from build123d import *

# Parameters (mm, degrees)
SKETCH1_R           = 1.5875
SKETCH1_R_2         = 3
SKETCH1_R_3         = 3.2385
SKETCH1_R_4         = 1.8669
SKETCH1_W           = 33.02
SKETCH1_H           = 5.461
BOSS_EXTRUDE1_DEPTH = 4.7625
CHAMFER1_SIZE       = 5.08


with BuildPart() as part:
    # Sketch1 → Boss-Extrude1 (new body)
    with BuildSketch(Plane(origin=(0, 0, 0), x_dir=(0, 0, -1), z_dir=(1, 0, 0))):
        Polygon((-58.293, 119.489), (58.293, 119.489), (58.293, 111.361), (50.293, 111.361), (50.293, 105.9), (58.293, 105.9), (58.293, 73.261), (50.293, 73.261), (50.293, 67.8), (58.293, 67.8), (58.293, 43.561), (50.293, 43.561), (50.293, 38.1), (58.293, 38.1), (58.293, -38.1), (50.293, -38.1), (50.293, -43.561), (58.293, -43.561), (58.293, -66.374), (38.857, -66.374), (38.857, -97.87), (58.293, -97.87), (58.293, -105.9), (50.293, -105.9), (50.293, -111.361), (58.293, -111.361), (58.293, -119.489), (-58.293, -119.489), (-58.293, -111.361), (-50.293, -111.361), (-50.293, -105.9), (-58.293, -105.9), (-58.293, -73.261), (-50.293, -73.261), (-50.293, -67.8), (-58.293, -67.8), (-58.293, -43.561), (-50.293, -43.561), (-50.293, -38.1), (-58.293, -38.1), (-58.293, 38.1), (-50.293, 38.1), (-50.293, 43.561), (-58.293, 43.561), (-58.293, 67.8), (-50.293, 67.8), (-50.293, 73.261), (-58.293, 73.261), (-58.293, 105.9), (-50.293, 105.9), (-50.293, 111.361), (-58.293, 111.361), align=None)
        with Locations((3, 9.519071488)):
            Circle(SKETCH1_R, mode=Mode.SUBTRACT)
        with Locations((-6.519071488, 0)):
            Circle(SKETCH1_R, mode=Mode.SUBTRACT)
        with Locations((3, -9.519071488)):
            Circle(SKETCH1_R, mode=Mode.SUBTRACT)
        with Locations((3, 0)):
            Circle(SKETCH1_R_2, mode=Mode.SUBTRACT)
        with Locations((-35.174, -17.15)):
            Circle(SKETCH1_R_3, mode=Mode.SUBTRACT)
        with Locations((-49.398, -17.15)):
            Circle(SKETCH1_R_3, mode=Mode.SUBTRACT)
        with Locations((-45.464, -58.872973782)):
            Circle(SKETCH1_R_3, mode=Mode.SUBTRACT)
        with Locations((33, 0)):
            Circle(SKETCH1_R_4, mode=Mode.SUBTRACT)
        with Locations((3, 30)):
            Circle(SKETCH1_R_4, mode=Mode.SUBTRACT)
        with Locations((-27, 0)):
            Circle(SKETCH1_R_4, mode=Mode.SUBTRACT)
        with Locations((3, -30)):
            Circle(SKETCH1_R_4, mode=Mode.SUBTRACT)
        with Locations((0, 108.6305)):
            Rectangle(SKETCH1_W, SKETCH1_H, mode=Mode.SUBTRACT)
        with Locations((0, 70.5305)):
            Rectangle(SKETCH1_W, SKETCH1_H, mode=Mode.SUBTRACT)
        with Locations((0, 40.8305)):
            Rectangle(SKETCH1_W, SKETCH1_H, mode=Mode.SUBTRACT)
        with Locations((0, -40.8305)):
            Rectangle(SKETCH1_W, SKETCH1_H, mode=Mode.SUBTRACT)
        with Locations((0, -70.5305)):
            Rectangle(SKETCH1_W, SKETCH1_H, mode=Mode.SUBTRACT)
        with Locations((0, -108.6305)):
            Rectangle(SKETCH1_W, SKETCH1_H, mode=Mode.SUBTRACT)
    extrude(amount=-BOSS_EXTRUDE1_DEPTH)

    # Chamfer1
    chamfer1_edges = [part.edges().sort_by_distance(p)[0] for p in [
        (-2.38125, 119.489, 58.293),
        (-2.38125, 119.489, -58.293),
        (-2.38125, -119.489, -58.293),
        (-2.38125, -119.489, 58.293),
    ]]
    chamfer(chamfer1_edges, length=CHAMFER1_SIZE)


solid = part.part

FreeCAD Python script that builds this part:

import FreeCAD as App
import Part
import Sketcher
Q = App.Units.Quantity


def edges_at(feature, points):
    """Names of the edges that pass closest to the given points."""
    edges = feature.Shape.Edges
    near = lambda p: min(range(len(edges)), key=lambda i: edges[i].distToShape(Part.Vertex(*p))[0])
    return sorted({f"Edge{near(p) + 1}" for p in points})


def add_polygon(sketch, points):
    """Adds a closed chain of lines whose ends are joined by coincident constraints."""
    first, n = sketch.GeometryCount, len(points)
    for a, b in zip(points, points[1:] + points[:1]):
        sketch.addGeometry(Part.LineSegment(App.Vector(*a, 0), App.Vector(*b, 0)), False)
    for i in range(n):
        sketch.addConstraint(Sketcher.Constraint("Coincident", first + i, 2, first + (i + 1) % n, 1))

doc = App.newDocument("Part")
body = doc.addObject("PartDesign::Body", "Body")

# Sketch on YZ plane
sketch1 = body.newObject("Sketcher::SketchObject", "Sketch")
sketch1.AttachmentSupport = (doc.getObject("YZ_Plane"), [""])
sketch1.MapMode = "FlatFace"
add_polygon(sketch1, [(119.5, -58.3), (119.5, 58.3), (111.4, 58.3), (111.4, 50.3), (105.9, 50.3), (105.9, 58.3), (73.3, 58.3), (73.3, 50.3), (67.8, 50.3), (67.8, 58.3), (43.6, 58.3), (43.6, 50.3), (38.1, 50.3), (38.1, 58.3), (-38.1, 58.3), (-38.1, 50.3), (-43.6, 50.3), (-43.6, 58.3), (-67.8, 58.3), (-67.8, 50.3), (-73.3, 50.3), (-73.3, 58.3), (-105.9, 58.3), (-105.9, 50.3), (-111.4, 50.3), (-111.4, 58.3), (-119.5, 58.3), (-119.5, -58.3), (-111.4, -58.3), (-111.4, -50.3), (-105.9, -50.3), (-105.9, -58.3), (-97.9, -58.3), (-97.9, -38.9), (-66.4, -38.9), (-66.4, -58.3), (-43.6, -58.3), (-43.6, -50.3), (-38.1, -50.3), (-38.1, -58.3), (38.1, -58.3), (38.1, -50.3), (43.6, -50.3), (43.6, -58.3), (67.8, -58.3), (67.8, -50.3), (73.3, -50.3), (73.3, -58.3), (105.9, -58.3), (105.9, -50.3), (111.4, -50.3), (111.4, -58.3)])  # lines 0-51
add_polygon(sketch1, [(-111.4, 16.5), (-105.9, 16.5), (-105.9, -16.5), (-111.4, -16.5)])  # lines 52-55
add_polygon(sketch1, [(-73.3, 16.5), (-67.8, 16.5), (-67.8, -16.5), (-73.3, -16.5)])  # lines 56-59
sketch1.addGeometry(Part.Circle(App.Vector(-30, -3, 0), App.Vector(0, 0, 1), 1.9), False)  # 60
add_polygon(sketch1, [(-43.6, 16.5), (-38.1, 16.5), (-38.1, -16.5), (-43.6, -16.5)])  # lines 61-64
sketch1.addGeometry(Part.Circle(App.Vector(-9.5, -3, 0), App.Vector(0, 0, 1), 1.6), False)  # 65
sketch1.addGeometry(Part.Circle(App.Vector(-58.9, 45.5, 0), App.Vector(0, 0, 1), 3.2), False)  # 66
sketch1.addGeometry(Part.Circle(App.Vector(-17.1, 35.2, 0), App.Vector(0, 0, 1), 3.2), False)  # 67
sketch1.addGeometry(Part.Circle(App.Vector(-17.1, 49.4, 0), App.Vector(0, 0, 1), 3.2), False)  # 68
sketch1.addGeometry(Part.Circle(App.Vector(0, -33, 0), App.Vector(0, 0, 1), 1.9), False)  # 69
sketch1.addGeometry(Part.Circle(App.Vector(0, -3, 0), App.Vector(0, 0, 1), 3), False)  # 70
sketch1.addGeometry(Part.Circle(App.Vector(9.5, -3, 0), App.Vector(0, 0, 1), 1.6), False)  # 71
sketch1.addGeometry(Part.Circle(App.Vector(0, 6.5, 0), App.Vector(0, 0, 1), 1.6), False)  # 72
sketch1.addGeometry(Part.Circle(App.Vector(30, -3, 0), App.Vector(0, 0, 1), 1.9), False)  # 73
add_polygon(sketch1, [(38.1, 16.5), (43.6, 16.5), (43.6, -16.5), (38.1, -16.5)])  # lines 74-77
add_polygon(sketch1, [(67.8, 16.5), (73.3, 16.5), (73.3, -16.5), (67.8, -16.5)])  # lines 78-81
add_polygon(sketch1, [(105.9, 16.5), (111.4, 16.5), (111.4, -16.5), (105.9, -16.5)])  # lines 82-85
sketch1.addGeometry(Part.Circle(App.Vector(0, 27, 0), App.Vector(0, 0, 1), 1.9), False)  # 86
sketch1.addConstraint([
    Sketcher.Constraint("Vertical", 0),
    Sketcher.Constraint("Horizontal", 1),
    Sketcher.Constraint("Vertical", 2),
    Sketcher.Constraint("Horizontal", 3),
    Sketcher.Constraint("Vertical", 4),
    Sketcher.Constraint("Horizontal", 5),
    Sketcher.Constraint("Vertical", 6),
    Sketcher.Constraint("Horizontal", 7),
    Sketcher.Constraint("Vertical", 8),
    Sketcher.Constraint("Horizontal", 9),
    Sketcher.Constraint("Vertical", 10),
    Sketcher.Constraint("Horizontal", 11),
    Sketcher.Constraint("Vertical", 12),
    Sketcher.Constraint("Horizontal", 13),
    Sketcher.Constraint("Vertical", 14),
    Sketcher.Constraint("Horizontal", 15),
    Sketcher.Constraint("Vertical", 16),
    Sketcher.Constraint("Horizontal", 17),
    Sketcher.Constraint("Vertical", 18),
    Sketcher.Constraint("Horizontal", 19),
    Sketcher.Constraint("Vertical", 20),
    Sketcher.Constraint("Horizontal", 21),
    Sketcher.Constraint("Vertical", 22),
    Sketcher.Constraint("Horizontal", 23),
    Sketcher.Constraint("Vertical", 24),
    Sketcher.Constraint("Horizontal", 25),
    Sketcher.Constraint("Vertical", 26),
    Sketcher.Constraint("Horizontal", 27),
    Sketcher.Constraint("Vertical", 28),
    Sketcher.Constraint("Horizontal", 29),
    Sketcher.Constraint("Vertical", 30),
    Sketcher.Constraint("Horizontal", 31),
    Sketcher.Constraint("Vertical", 32),
    Sketcher.Constraint("Horizontal", 33),
    Sketcher.Constraint("Vertical", 34),
    Sketcher.Constraint("Horizontal", 35),
    Sketcher.Constraint("Vertical", 36),
    Sketcher.Constraint("Horizontal", 37),
    Sketcher.Constraint("Vertical", 38),
    Sketcher.Constraint("Horizontal", 39),
    Sketcher.Constraint("Vertical", 40),
    Sketcher.Constraint("Horizontal", 41),
    Sketcher.Constraint("Vertical", 42),
    Sketcher.Constraint("Horizontal", 43),
    Sketcher.Constraint("Vertical", 44),
    Sketcher.Constraint("Horizontal", 45),
    Sketcher.Constraint("Vertical", 46),
    Sketcher.Constraint("Horizontal", 47),
    Sketcher.Constraint("Vertical", 48),
    Sketcher.Constraint("Horizontal", 49),
    Sketcher.Constraint("Vertical", 50),
    Sketcher.Constraint("Horizontal", 51),
    Sketcher.Constraint("Horizontal", 52),
    Sketcher.Constraint("Vertical", 53),
    Sketcher.Constraint("Horizontal", 54),
    Sketcher.Constraint("Vertical", 55),
    Sketcher.Constraint("Horizontal", 56),
    Sketcher.Constraint("Vertical", 57),
    Sketcher.Constraint("Horizontal", 58),
    Sketcher.Constraint("Vertical", 59),
    Sketcher.Constraint("Horizontal", 61),
    Sketcher.Constraint("Vertical", 62),
    Sketcher.Constraint("Horizontal", 63),
    Sketcher.Constraint("Vertical", 64),
    Sketcher.Constraint("Horizontal", 74),
    Sketcher.Constraint("Vertical", 75),
    Sketcher.Constraint("Horizontal", 76),
    Sketcher.Constraint("Vertical", 77),
    Sketcher.Constraint("Horizontal", 78),
    Sketcher.Constraint("Vertical", 79),
    Sketcher.Constraint("Horizontal", 80),
    Sketcher.Constraint("Vertical", 81),
    Sketcher.Constraint("Horizontal", 82),
    Sketcher.Constraint("Vertical", 83),
    Sketcher.Constraint("Horizontal", 84),
    Sketcher.Constraint("Vertical", 85),
    Sketcher.Constraint("Equal", 66, 67),
    Sketcher.Constraint("Equal", 67, 68),
    Sketcher.Constraint("Equal", 60, 69),
    Sketcher.Constraint("Equal", 65, 71),
    Sketcher.Constraint("Equal", 71, 72),
    Sketcher.Constraint("Equal", 69, 73),
    Sketcher.Constraint("Equal", 73, 86),
    Sketcher.Constraint("Symmetric", 0, 2, 26, 2, -1, 1),
    Sketcher.Constraint("Symmetric", 2, 2, 28, 2, -1, 1),
    Sketcher.Constraint("Symmetric", 4, 2, 30, 2, -1, 1),
    Sketcher.Constraint("Symmetric", 9, 2, 35, 2, -1, 1),
    Sketcher.Constraint("Symmetric", 11, 2, 37, 2, -1, 1),
    Sketcher.Constraint("Symmetric", 13, 2, 39, 2, -1, 1),
    Sketcher.Constraint("Symmetric", 15, 2, 41, 2, -1, 1),
    Sketcher.Constraint("Symmetric", 17, 2, 43, 2, -1, 1),
    Sketcher.Constraint("Symmetric", 19, 2, 45, 2, -1, 1),
    Sketcher.Constraint("Symmetric", 21, 2, 47, 2, -1, 1),
    Sketcher.Constraint("Symmetric", 23, 2, 49, 2, -1, 1),
    Sketcher.Constraint("Symmetric", 63, 2, 74, 2, -1, 1),
    Sketcher.Constraint("Symmetric", 61, 2, 76, 2, -1, 1),
    Sketcher.Constraint("Symmetric", 58, 2, 78, 2, -1, 1),
    Sketcher.Constraint("Symmetric", 56, 2, 80, 2, -1, 1),
    Sketcher.Constraint("Symmetric", 54, 2, 82, 2, -1, 1),
    Sketcher.Constraint("Symmetric", 52, 2, 84, 2, -1, 1),
    Sketcher.Constraint("Symmetric", 65, 3, 71, 3, -2),
    Sketcher.Constraint("Symmetric", 60, 3, 73, 3, -2),
    Sketcher.Constraint("Symmetric", 11, 2, 14, 2, -2),
    Sketcher.Constraint("Symmetric", 9, 2, 16, 2, -2),
    Sketcher.Constraint("Symmetric", 7, 2, 18, 2, -2),
    Sketcher.Constraint("Symmetric", 5, 2, 20, 2, -2),
    Sketcher.Constraint("Symmetric", 3, 2, 22, 2, -2),
    Sketcher.Constraint("Symmetric", 1, 2, 24, 2, -2),
    Sketcher.Constraint("PointOnObject", 69, 3, -2),
    Sketcher.Constraint("PointOnObject", 70, 3, -2),
    Sketcher.Constraint("PointOnObject", 72, 3, -2),
    Sketcher.Constraint("PointOnObject", 86, 3, -2),
    Sketcher.Constraint("Horizontal", 60, 3, 65, 3),
    Sketcher.Constraint("Horizontal", 65, 3, 70, 3),
    Sketcher.Constraint("Horizontal", 1, 2, 4, 2),
    Sketcher.Constraint("Horizontal", 3, 2, 6, 2),
    Sketcher.Constraint("Horizontal", 5, 2, 8, 2),
    Sketcher.Constraint("Horizontal", 7, 2, 10, 2),
    Sketcher.Constraint("Horizontal", 9, 2, 12, 2),
    Sketcher.Constraint("Horizontal", 47, 2, 50, 2),
    Sketcher.Constraint("Horizontal", 55, 2, 56, 2),
    Sketcher.Constraint("Horizontal", 54, 2, 57, 2),
    Sketcher.Constraint("Horizontal", 59, 2, 61, 2),
    Sketcher.Constraint("Horizontal", 58, 2, 62, 2),
    Sketcher.Constraint("Horizontal", 64, 2, 74, 2),
    Sketcher.Constraint("Vertical", 67, 3, 68, 3),
    Sketcher.Constraint("Vertical", 30, 2, 52, 2),
    Sketcher.Constraint("Vertical", 28, 2, 54, 2),
    Sketcher.Constraint("Vertical", 18, 2, 56, 2),
    Sketcher.Constraint("Vertical", 20, 2, 58, 2),
    Sketcher.Constraint("Vertical", 38, 2, 61, 2),
    Sketcher.Constraint("Vertical", 36, 2, 63, 2),
    Sketcher.Constraint("Equal", 3, 7),
    Sketcher.Constraint("Equal", 7, 11),
    Sketcher.Constraint("DistanceX", 13, 2, 13, 1, Q("3 in")),
    Sketcher.Constraint("Diameter", 60, Q("0.147 in")),
    Sketcher.Constraint("Diameter", 65, Q("0.125 in")),
    Sketcher.Constraint("Diameter", 66, Q("0.255 in")),
    Sketcher.Constraint("DistanceY", 53, 2, 53, 1, Q("1.3 in")),
    Sketcher.Constraint("DistanceX", 1, 2, 1, 1, Q("0.32 in")),
    Sketcher.Constraint("DistanceX", 33, 1, 33, 2, Q("1.24 in")),
    Sketcher.Constraint("DistanceY", 0, 1, 0, 2, Q("4.59 in")),
    Sketcher.Constraint("Diameter", 70, Q("6 mm")),
    Sketcher.Constraint("DistanceX", 3, 2, 3, 1, Q("0.215 in")),
    Sketcher.Constraint("DistanceX", 5, 2, 5, 1, Q("1.285 in")),
    Sketcher.Constraint("DistanceX", 9, 2, 9, 1, Q("24.239 mm")),
    Sketcher.Constraint("DistanceX", 31, 1, 31, 2, Q("8.03 mm")),
    Sketcher.Constraint("DistanceY", 2, 2, 2, 1, Q("8 mm")),
    Sketcher.Constraint("DistanceY", 32, 1, 32, 2, Q("19.436 mm")),
    Sketcher.Constraint("DistanceX", 60, 3, -1, 1, Q("30 mm")),
    Sketcher.Constraint("DistanceY", 60, 3, -1, 1, Q("3 mm")),
    Sketcher.Constraint("DistanceY", -1, 1, 66, 3, Q("45.464 mm")),
    Sketcher.Constraint("DistanceX", 67, 3, -1, 1, Q("17.15 mm")),
    Sketcher.Constraint("DistanceY", -1, 1, 67, 3, Q("35.174 mm")),
    Sketcher.Constraint("DistanceY", -1, 1, 68, 3, Q("49.398 mm")),
    Sketcher.Constraint("DistanceY", 69, 3, -1, 1, Q("33 mm")),
    Sketcher.Constraint("DistanceY", -1, 1, 86, 3, Q("27 mm")),
    Sketcher.Constraint("DistanceX", 65, 3, -1, 1, Q("9.519071 mm")),
    Sketcher.Constraint("DistanceY", -1, 1, 72, 3, Q("6.519071 mm")),
    Sketcher.Constraint("DistanceX", 66, 3, -1, 1, Q("58.872974 mm")),
])
pad1 = body.newObject("PartDesign::Pad", "Pad")
pad1.Profile = sketch1
pad1.Length = Q("0.1875 in")
pad1.Reversed = True
doc.recompute()

chamfer = body.newObject("PartDesign::Chamfer", "Chamfer")
chamfer.Base = (pad1, edges_at(pad1, [
    (-2.381, 119.489, 58.293),
    (-2.381, 119.489, -58.293),
    (-2.381, -119.489, -58.293),
    (-2.381, -119.489, 58.293),
]))
chamfer.Size = Q("0.2 in")

doc.recompute()
